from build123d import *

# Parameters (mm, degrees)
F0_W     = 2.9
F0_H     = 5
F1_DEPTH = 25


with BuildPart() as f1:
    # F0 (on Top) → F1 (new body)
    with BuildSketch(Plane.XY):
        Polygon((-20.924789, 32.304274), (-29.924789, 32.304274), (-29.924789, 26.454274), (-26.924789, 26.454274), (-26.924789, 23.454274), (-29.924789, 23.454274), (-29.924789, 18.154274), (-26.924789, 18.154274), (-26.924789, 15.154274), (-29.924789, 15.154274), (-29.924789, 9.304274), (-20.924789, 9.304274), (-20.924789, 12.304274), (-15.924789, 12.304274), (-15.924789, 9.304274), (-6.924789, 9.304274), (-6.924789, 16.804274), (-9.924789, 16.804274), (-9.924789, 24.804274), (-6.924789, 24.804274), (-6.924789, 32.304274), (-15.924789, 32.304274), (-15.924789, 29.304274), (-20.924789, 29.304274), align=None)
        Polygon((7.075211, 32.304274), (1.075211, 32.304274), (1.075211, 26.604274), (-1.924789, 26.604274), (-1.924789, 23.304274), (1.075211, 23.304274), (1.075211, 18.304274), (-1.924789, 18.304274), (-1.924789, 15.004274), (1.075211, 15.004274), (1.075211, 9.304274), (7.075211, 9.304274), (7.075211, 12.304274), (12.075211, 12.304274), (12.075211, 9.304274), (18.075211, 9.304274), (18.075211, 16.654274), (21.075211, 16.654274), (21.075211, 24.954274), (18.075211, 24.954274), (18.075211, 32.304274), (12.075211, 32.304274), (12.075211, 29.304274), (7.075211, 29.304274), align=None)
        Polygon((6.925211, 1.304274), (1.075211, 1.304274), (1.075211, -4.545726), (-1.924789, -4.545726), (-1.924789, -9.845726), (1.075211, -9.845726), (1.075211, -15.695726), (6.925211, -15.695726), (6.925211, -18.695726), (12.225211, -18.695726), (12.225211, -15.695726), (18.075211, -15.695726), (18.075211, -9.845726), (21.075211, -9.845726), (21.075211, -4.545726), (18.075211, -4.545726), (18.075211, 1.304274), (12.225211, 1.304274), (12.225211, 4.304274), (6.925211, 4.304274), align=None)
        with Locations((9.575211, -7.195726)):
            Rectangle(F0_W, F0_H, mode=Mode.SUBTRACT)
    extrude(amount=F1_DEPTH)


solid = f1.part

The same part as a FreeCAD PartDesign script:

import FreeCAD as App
import Part
import Sketcher

V = App.Vector

doc = App.newDocument("Part")
body = doc.addObject("PartDesign::Body", "Body")
body.AllowCompound = True

sketch1 = body.newObject("Sketcher::SketchObject", "Sketch")
sketch1.AttachmentSupport = (doc.getObject("XY_Plane"), [""])
sketch1.MapMode = "FlatFace"
sketch1.addGeometry([
    Part.LineSegment(V(-20.924789, 32.304274, 0), V(-29.924789, 32.304274, 0)),
    Part.LineSegment(V(-29.924789, 32.304274, 0), V(-29.924789, 26.454274, 0)),
    Part.LineSegment(V(-29.924789, 26.454274, 0), V(-26.924789, 26.454274, 0)),
    Part.LineSegment(V(-26.924789, 26.454274, 0), V(-26.924789, 23.454274, 0)),
    Part.LineSegment(V(-26.924789, 23.454274, 0), V(-29.924789, 23.454274, 0)),
    Part.LineSegment(V(-29.924789, 23.454274, 0), V(-29.924789, 18.154274, 0)),
    Part.LineSegment(V(-29.924789, 18.154274, 0), V(-26.924789, 18.154274, 0)),
    Part.LineSegment(V(-26.924789, 18.154274, 0), V(-26.924789, 15.154274, 0)),
    Part.LineSegment(V(-26.924789, 15.154274, 0), V(-29.924789, 15.154274, 0)),
    Part.LineSegment(V(-29.924789, 15.154274, 0), V(-29.924789, 9.304274, 0)),
    Part.LineSegment(V(-29.924789, 9.304274, 0), V(-20.924789, 9.304274, 0)),
    Part.LineSegment(V(-20.924789, 9.304274, 0), V(-20.924789, 12.304274, 0)),
    Part.LineSegment(V(-20.924789, 12.304274, 0), V(-15.924789, 12.304274, 0)),
    Part.LineSegment(V(-15.924789, 12.304274, 0), V(-15.924789, 9.304274, 0)),
    Part.LineSegment(V(-15.924789, 9.304274, 0), V(-6.924789, 9.304274, 0)),
    Part.LineSegment(V(-6.924789, 9.304274, 0), V(-6.924789, 16.804274, 0)),
    Part.LineSegment(V(-6.924789, 16.804274, 0), V(-9.924789, 16.804274, 0)),
    Part.LineSegment(V(-9.924789, 16.804274, 0), V(-9.924789, 24.804274, 0)),
    Part.LineSegment(V(-9.924789, 24.804274, 0), V(-6.924789, 24.804274, 0)),
    Part.LineSegment(V(-6.924789, 24.804274, 0), V(-6.924789, 32.304274, 0)),
    Part.LineSegment(V(-6.924789, 32.304274, 0), V(-15.924789, 32.304274, 0)),
    Part.LineSegment(V(-15.924789, 32.304274, 0), V(-15.924789, 29.304274, 0)),
    Part.LineSegment(V(-15.924789, 29.304274, 0), V(-20.924789, 29.304274, 0)),
    Part.LineSegment(V(-20.924789, 29.304274, 0), V(-20.924789, 32.304274, 0)),
    Part.LineSegment(V(7.075211, 32.304274, 0), V(1.075211, 32.304274, 0)),
    Part.LineSegment(V(1.075211, 32.304274, 0), V(1.075211, 26.604274, 0)),
    Part.LineSegment(V(1.075211, 26.604274, 0), V(-1.924789, 26.604274, 0)),
    Part.LineSegment(V(-1.924789, 26.604274, 0), V(-1.924789, 23.304274, 0)),
    Part.LineSegment(V(-1.924789, 23.304274, 0), V(1.075211, 23.304274, 0)),
    Part.LineSegment(V(1.075211, 23.304274, 0), V(1.075211, 18.304274, 0)),
    Part.LineSegment(V(1.075211, 18.304274, 0), V(-1.924789, 18.304274, 0)),
    Part.LineSegment(V(-1.924789, 18.304274, 0), V(-1.924789, 15.004274, 0)),
    Part.LineSegment(V(-1.924789, 15.004274, 0), V(1.075211, 15.004274, 0)),
    Part.LineSegment(V(1.075211, 15.004274, 0), V(1.075211, 9.304274, 0)),
    Part.LineSegment(V(1.075211, 9.304274, 0), V(7.075211, 9.304274, 0)),
    Part.LineSegment(V(7.075211, 9.304274, 0), V(7.075211, 12.304274, 0)),
    Part.LineSegment(V(7.075211, 12.304274, 0), V(12.075211, 12.304274, 0)),
    Part.LineSegment(V(12.075211, 12.304274, 0), V(12.075211, 9.304274, 0)),
    Part.LineSegment(V(12.075211, 9.304274, 0), V(18.075211, 9.304274, 0)),
    Part.LineSegment(V(18.075211, 9.304274, 0), V(18.075211, 16.654274, 0)),
    Part.LineSegment(V(18.075211, 16.654274, 0), V(21.075211, 16.654274, 0)),
    Part.LineSegment(V(21.075211, 16.654274, 0), V(21.075211, 24.954274, 0)),
    Part.LineSegment(V(21.075211, 24.954274, 0), V(18.075211, 24.954274, 0)),
    Part.LineSegment(V(18.075211, 24.954274, 0), V(18.075211, 32.304274, 0)),
    Part.LineSegment(V(18.075211, 32.304274, 0), V(12.075211, 32.304274, 0)),
    Part.LineSegment(V(12.075211, 32.304274, 0), V(12.075211, 29.304274, 0)),
    Part.LineSegment(V(12.075211, 29.304274, 0), V(7.075211, 29.304274, 0)),
    Part.LineSegment(V(7.075211, 29.304274, 0), V(7.075211, 32.304274, 0)),
    Part.LineSegment(V(6.925211, 1.304274, 0), V(1.075211, 1.304274, 0)),
    Part.LineSegment(V(1.075211, 1.304274, 0), V(1.075211, -4.545726, 0)),
    Part.LineSegment(V(1.075211, -4.545726, 0), V(-1.924789, -4.545726, 0)),
    Part.LineSegment(V(-1.924789, -4.545726, 0), V(-1.924789, -9.845726, 0)),
    Part.LineSegment(V(-1.924789, -9.845726, 0), V(1.075211, -9.845726, 0)),
    Part.LineSegment(V(1.075211, -9.845726, 0), V(1.075211, -15.695726, 0)),
    Part.LineSegment(V(1.075211, -15.695726, 0), V(6.925211, -15.695726, 0)),
    Part.LineSegment(V(6.925211, -15.695726, 0), V(6.925211, -18.695726, 0)),
    Part.LineSegment(V(6.925211, -18.695726, 0), V(12.225211, -18.695726, 0)),
    Part.LineSegment(V(12.225211, -18.695726, 0), V(12.225211, -15.695726, 0)),
    Part.LineSegment(V(12.225211, -15.695726, 0), V(18.075211, -15.695726, 0)),
    Part.LineSegment(V(18.075211, -15.695726, 0), V(18.075211, -9.845726, 0)),
    Part.LineSegment(V(18.075211, -9.845726, 0), V(21.075211, -9.845726, 0)),
    Part.LineSegment(V(21.075211, -9.845726, 0), V(21.075211, -4.545726, 0)),
    Part.LineSegment(V(21.075211, -4.545726, 0), V(18.075211, -4.545726, 0)),
    Part.LineSegment(V(18.075211, -4.545726, 0), V(18.075211, 1.304274, 0)),
    Part.LineSegment(V(18.075211, 1.304274, 0), V(12.225211, 1.304274, 0)),
    Part.LineSegment(V(12.225211, 1.304274, 0), V(12.225211, 4.304274, 0)),
    Part.LineSegment(V(12.225211, 4.304274, 0), V(6.925211, 4.304274, 0)),
    Part.LineSegment(V(6.925211, 4.304274, 0), V(6.925211, 1.304274, 0)),
    Part.LineSegment(V(11.025211, -9.695726, 0), V(8.125211, -9.695726, 0)),
    Part.LineSegment(V(8.125211, -9.695726, 0), V(8.125211, -4.695726, 0)),
    Part.LineSegment(V(8.125211, -4.695726, 0), V(11.025211, -4.695726, 0)),
    Part.LineSegment(V(11.025211, -4.695726, 0), V(11.025211, -9.695726, 0)),
], False)
sketch1.addConstraint([
    Sketcher.Constraint("Coincident", 0, 2, 1, 1),
    Sketcher.Constraint("Coincident", 1, 2, 2, 1),
    Sketcher.Constraint("Coincident", 2, 2, 3, 1),
    Sketcher.Constraint("Coincident", 3, 2, 4, 1),
    Sketcher.Constraint("Coincident", 4, 2, 5, 1),
    Sketcher.Constraint("Coincident", 5, 2, 6, 1),
    Sketcher.Constraint("Coincident", 6, 2, 7, 1),
    Sketcher.Constraint("Coincident", 7, 2, 8, 1),
    Sketcher.Constraint("Coincident", 8, 2, 9, 1),
    Sketcher.Constraint("Coincident", 9, 2, 10, 1),
    Sketcher.Constraint("Coincident", 10, 2, 11, 1),
    Sketcher.Constraint("Coincident", 11, 2, 12, 1),
    Sketcher.Constraint("Coincident", 12, 2, 13, 1),
    Sketcher.Constraint("Coincident", 13, 2, 14, 1),
    Sketcher.Constraint("Coincident", 14, 2, 15, 1),
    Sketcher.Constraint("Coincident", 15, 2, 16, 1),
    Sketcher.Constraint("Coincident", 16, 2, 17, 1),
    Sketcher.Constraint("Coincident", 17, 2, 18, 1),
    Sketcher.Constraint("Coincident", 18, 2, 19, 1),
    Sketcher.Constraint("Coincident", 19, 2, 20, 1),
    Sketcher.Constraint("Coincident", 20, 2, 21, 1),
    Sketcher.Constraint("Coincident", 21, 2, 22, 1),
    Sketcher.Constraint("Coincident", 22, 2, 23, 1),
    Sketcher.Constraint("Coincident", 23, 2, 0, 1),
    Sketcher.Constraint("Coincident", 24, 2, 25, 1),
    Sketcher.Constraint("Coincident", 25, 2, 26, 1),
    Sketcher.Constraint("Coincident", 26, 2, 27, 1),
    Sketcher.Constraint("Coincident", 27, 2, 28, 1),
    Sketcher.Constraint("Coincident", 28, 2, 29, 1),
    Sketcher.Constraint("Coincident", 29, 2, 30, 1),
    Sketcher.Constraint("Coincident", 30, 2, 31, 1),
    Sketcher.Constraint("Coincident", 31, 2, 32, 1),
    Sketcher.Constraint("Coincident", 32, 2, 33, 1),
    Sketcher.Constraint("Coincident", 33, 2, 34, 1),
    Sketcher.Constraint("Coincident", 34, 2, 35, 1),
    Sketcher.Constraint("Coincident", 35, 2, 36, 1),
    Sketcher.Constraint("Coincident", 36, 2, 37, 1),
    Sketcher.Constraint("Coincident", 37, 2, 38, 1),
    Sketcher.Constraint("Coincident", 38, 2, 39, 1),
    Sketcher.Constraint("Coincident", 39, 2, 40, 1),
    Sketcher.Constraint("Coincident", 40, 2, 41, 1),
    Sketcher.Constraint("Coincident", 41, 2, 42, 1),
    Sketcher.Constraint("Coincident", 42, 2, 43, 1),
    Sketcher.Constraint("Coincident", 43, 2, 44, 1),
    Sketcher.Constraint("Coincident", 44, 2, 45, 1),
    Sketcher.Constraint("Coincident", 45, 2, 46, 1),
    Sketcher.Constraint("Coincident", 46, 2, 47, 1),
    Sketcher.Constraint("Coincident", 47, 2, 24, 1),
    Sketcher.Constraint("Coincident", 48, 2, 49, 1),
    Sketcher.Constraint("Coincident", 49, 2, 50, 1),
    Sketcher.Constraint("Coincident", 50, 2, 51, 1),
    Sketcher.Constraint("Coincident", 51, 2, 52, 1),
    Sketcher.Constraint("Coincident", 52, 2, 53, 1),
    Sketcher.Constraint("Coincident", 53, 2, 54, 1),
    Sketcher.Constraint("Coincident", 54, 2, 55, 1),
    Sketcher.Constraint("Coincident", 55, 2, 56, 1),
    Sketcher.Constraint("Coincident", 56, 2, 57, 1),
    Sketcher.Constraint("Coincident", 57, 2, 58, 1),
    Sketcher.Constraint("Coincident", 58, 2, 59, 1),
    Sketcher.Constraint("Coincident", 59, 2, 60, 1),
    Sketcher.Constraint("Coincident", 60, 2, 61, 1),
    Sketcher.Constraint("Coincident", 61, 2, 62, 1),
    Sketcher.Constraint("Coincident", 62, 2, 63, 1),
    Sketcher.Constraint("Coincident", 63, 2, 64, 1),
    Sketcher.Constraint("Coincident", 64, 2, 65, 1),
    Sketcher.Constraint("Coincident", 65, 2, 66, 1),
    Sketcher.Constraint("Coincident", 66, 2, 67, 1),
    Sketcher.Constraint("Coincident", 67, 2, 48, 1),
    Sketcher.Constraint("Coincident", 68, 2, 69, 1),
    Sketcher.Constraint("Coincident", 69, 2, 70, 1),
    Sketcher.Constraint("Coincident", 70, 2, 71, 1),
    Sketcher.Constraint("Coincident", 71, 2, 68, 1),
    Sketcher.Constraint("Horizontal", 0),
    Sketcher.Constraint("Vertical", 1),
    Sketcher.Constraint("Horizontal", 2),
    Sketcher.Constraint("Vertical", 3),
    Sketcher.Constraint("Horizontal", 4),
    Sketcher.Constraint("Vertical", 5),
    Sketcher.Constraint("Horizontal", 6),
    Sketcher.Constraint("Vertical", 7),
    Sketcher.Constraint("Horizontal", 8),
    Sketcher.Constraint("Vertical", 9),
    Sketcher.Constraint("Horizontal", 10),
    Sketcher.Constraint("Vertical", 11),
    Sketcher.Constraint("Horizontal", 12),
    Sketcher.Constraint("Vertical", 13),
    Sketcher.Constraint("Horizontal", 14),
    Sketcher.Constraint("Vertical", 15),
    Sketcher.Constraint("Horizontal", 16),
    Sketcher.Constraint("Vertical", 17),
    Sketcher.Constraint("Horizontal", 18),
    Sketcher.Constraint("Vertical", 19),
    Sketcher.Constraint("Horizontal", 20),
    Sketcher.Constraint("Vertical", 21),
    Sketcher.Constraint("Horizontal", 22),
    Sketcher.Constraint("Vertical", 23),
    Sketcher.Constraint("Horizontal", 24),
    Sketcher.Constraint("Vertical", 25),
    Sketcher.Constraint("Horizontal", 26),
    Sketcher.Constraint("Vertical", 27),
    Sketcher.Constraint("Horizontal", 28),
    Sketcher.Constraint("Vertical", 29),
    Sketcher.Constraint("Horizontal", 30),
    Sketcher.Constraint("Vertical", 31),
    Sketcher.Constraint("Horizontal", 32),
    Sketcher.Constraint("Vertical", 33),
    Sketcher.Constraint("Horizontal", 34),
    Sketcher.Constraint("Vertical", 35),
    Sketcher.Constraint("Horizontal", 36),
    Sketcher.Constraint("Vertical", 37),
    Sketcher.Constraint("Horizontal", 38),
    Sketcher.Constraint("Vertical", 39),
    Sketcher.Constraint("Horizontal", 40),
    Sketcher.Constraint("Vertical", 41),
    Sketcher.Constraint("Horizontal", 42),
    Sketcher.Constraint("Vertical", 43),
    Sketcher.Constraint("Horizontal", 44),
    Sketcher.Constraint("Vertical", 45),
    Sketcher.Constraint("Horizontal", 46),
    Sketcher.Constraint("Vertical", 47),
    Sketcher.Constraint("Horizontal", 48),
    Sketcher.Constraint("Vertical", 49),
    Sketcher.Constraint("Horizontal", 50),
    Sketcher.Constraint("Vertical", 51),
    Sketcher.Constraint("Horizontal", 52),
    Sketcher.Constraint("Vertical", 53),
    Sketcher.Constraint("Horizontal", 54),
    Sketcher.Constraint("Vertical", 55),
    Sketcher.Constraint("Horizontal", 56),
    Sketcher.Constraint("Vertical", 57),
    Sketcher.Constraint("Horizontal", 58),
    Sketcher.Constraint("Vertical", 59),
    Sketcher.Constraint("Horizontal", 60),
    Sketcher.Constraint("Vertical", 61),
    Sketcher.Constraint("Horizontal", 62),
    Sketcher.Constraint("Vertical", 63),
    Sketcher.Constraint("Horizontal", 64),
    Sketcher.Constraint("Vertical", 65),
    Sketcher.Constraint("Horizontal", 66),
    Sketcher.Constraint("Vertical", 67),
    Sketcher.Constraint("Horizontal", 68),
    Sketcher.Constraint("Vertical", 69),
    Sketcher.Constraint("Horizontal", 70),
    Sketcher.Constraint("Vertical", 71),
    Sketcher.Constraint("Horizontal", 10, 2, 13, 2),
    Sketcher.Constraint("Horizontal", 0, 2, 19, 2),
    Sketcher.Constraint("Horizontal", 23, 2, 24, 2),
    Sketcher.Constraint("Horizontal", 14, 2, 33, 2),
    Sketcher.Constraint("Horizontal", 12, 2, 35, 2),
    Sketcher.Constraint("Horizontal", 34, 2, 37, 2),
    Sketcher.Constraint("Horizontal", 24, 2, 43, 2),
    Sketcher.Constraint("Horizontal", 22, 2, 45, 2),
    Sketcher.Constraint("Horizontal", 54, 2, 57, 2),
    Sketcher.Constraint("Horizontal", 52, 2, 59, 2),
    Sketcher.Constraint("Horizontal", 50, 2, 61, 2),
    Sketcher.Constraint("Horizontal", 48, 2, 63, 2),
    Sketcher.Constraint("Vertical", 1, 2, 4, 2),
    Sketcher.Constraint("Vertical", 3, 2, 6, 2),
    Sketcher.Constraint("Vertical", 5, 2, 8, 2),
    Sketcher.Constraint("Vertical", 15, 2, 18, 2),
    Sketcher.Constraint("Vertical", 13, 2, 20, 2),
    Sketcher.Constraint("Vertical", 11, 2, 22, 2),
    Sketcher.Constraint("Vertical", 25, 2, 28, 2),
    Sketcher.Constraint("Vertical", 27, 2, 30, 2),
    Sketcher.Constraint("Vertical", 29, 2, 32, 2),
    Sketcher.Constraint("Vertical", 39, 2, 42, 2),
    Sketcher.Constraint("Vertical", 37, 2, 44, 2),
    Sketcher.Constraint("Vertical", 35, 2, 46, 2),
    Sketcher.Constraint("Vertical", 33, 2, 48, 2),
    Sketcher.Constraint("Vertical", 31, 2, 50, 2),
    Sketcher.Constraint("Vertical", 49, 2, 52, 2),
    Sketcher.Constraint("Vertical", 43, 2, 58, 2),
    Sketcher.Constraint("Vertical", 41, 2, 60, 2),
    Sketcher.Constraint("Vertical", 59, 2, 62, 2),
    Sketcher.Constraint("Vertical", 57, 2, 64, 2),
    Sketcher.Constraint("Vertical", 55, 2, 66, 2),
    Sketcher.Constraint("Equal", 10, 14),
    Sketcher.Constraint("Equal", 8, 16),
    Sketcher.Constraint("Equal", 18, 26),
    Sketcher.Constraint("Equal", 22, 36),
    Sketcher.Constraint("Equal", 34, 38),
    Sketcher.Constraint("Equal", 32, 40),
    Sketcher.Constraint("Equal", 54, 58),
    Sketcher.Constraint("Equal", 64, 1),
    Sketcher.Constraint("Equal", 62, 3),
    Sketcher.Constraint("Equal", 66, 5),
    Sketcher.Constraint("Equal", 3, 7),
    Sketcher.Constraint("Equal", 1, 9),
    Sketcher.Constraint("Equal", 7, 11),
    Sketcher.Constraint("Equal", 15, 19),
    Sketcher.Constraint("Equal", 13, 21),
    Sketcher.Constraint("Equal", 46, 29),
    Sketcher.Constraint("Equal", 27, 31),
    Sketcher.Constraint("Equal", 25, 33),
    Sketcher.Constraint("Equal", 39, 43),
    Sketcher.Constraint("Equal", 9, 49),
    Sketcher.Constraint("Equal", 5, 51),
    Sketcher.Constraint("Equal", 49, 53),
    Sketcher.Constraint("Equal", 47, 55),
    Sketcher.Constraint("Equal", 57, 65),
    Sketcher.Constraint("Equal", 29, 69),
    Sketcher.Constraint("DistanceX", 0, 2, 0, 1, 9.0),
    Sketcher.Constraint("DistanceX", 2, 1, 2, 2, 3.0),
    Sketcher.Constraint("DistanceX", 12, 1, 12, 2, 5.0),
    Sketcher.Constraint("DistanceX", 24, 2, 24, 1, 6.0),
    Sketcher.Constraint("DistanceY", 17, 1, 17, 2, 8.0),
    Sketcher.Constraint("DistanceX", 56, 1, 56, 2, 5.3),
    Sketcher.Constraint("DistanceX", 68, 2, 68, 1, 2.9),
    Sketcher.Constraint("DistanceY", 25, 2, 25, 1, 5.7),
    Sketcher.Constraint("DistanceY", 41, 1, 41, 2, 8.3),
    Sketcher.Constraint("DistanceX", 0, 2, -1, 1, 29.924789),
    Sketcher.Constraint("DistanceX", -1, 1, 24, 2, 1.075211),
    Sketcher.Constraint("DistanceX", -1, 1, 68, 2, 8.125211),
    Sketcher.Constraint("DistanceY", -1, 1, 0, 2, 32.304274),
    Sketcher.Constraint("DistanceY", -1, 1, 48, 2, 1.304274),
    Sketcher.Constraint("DistanceY", 68, 2, -1, 1, 9.695726),
])
pad1 = body.newObject("PartDesign::Pad", "Pad")
pad1.Profile = sketch1
pad1.Length = 25

doc.recompute()
